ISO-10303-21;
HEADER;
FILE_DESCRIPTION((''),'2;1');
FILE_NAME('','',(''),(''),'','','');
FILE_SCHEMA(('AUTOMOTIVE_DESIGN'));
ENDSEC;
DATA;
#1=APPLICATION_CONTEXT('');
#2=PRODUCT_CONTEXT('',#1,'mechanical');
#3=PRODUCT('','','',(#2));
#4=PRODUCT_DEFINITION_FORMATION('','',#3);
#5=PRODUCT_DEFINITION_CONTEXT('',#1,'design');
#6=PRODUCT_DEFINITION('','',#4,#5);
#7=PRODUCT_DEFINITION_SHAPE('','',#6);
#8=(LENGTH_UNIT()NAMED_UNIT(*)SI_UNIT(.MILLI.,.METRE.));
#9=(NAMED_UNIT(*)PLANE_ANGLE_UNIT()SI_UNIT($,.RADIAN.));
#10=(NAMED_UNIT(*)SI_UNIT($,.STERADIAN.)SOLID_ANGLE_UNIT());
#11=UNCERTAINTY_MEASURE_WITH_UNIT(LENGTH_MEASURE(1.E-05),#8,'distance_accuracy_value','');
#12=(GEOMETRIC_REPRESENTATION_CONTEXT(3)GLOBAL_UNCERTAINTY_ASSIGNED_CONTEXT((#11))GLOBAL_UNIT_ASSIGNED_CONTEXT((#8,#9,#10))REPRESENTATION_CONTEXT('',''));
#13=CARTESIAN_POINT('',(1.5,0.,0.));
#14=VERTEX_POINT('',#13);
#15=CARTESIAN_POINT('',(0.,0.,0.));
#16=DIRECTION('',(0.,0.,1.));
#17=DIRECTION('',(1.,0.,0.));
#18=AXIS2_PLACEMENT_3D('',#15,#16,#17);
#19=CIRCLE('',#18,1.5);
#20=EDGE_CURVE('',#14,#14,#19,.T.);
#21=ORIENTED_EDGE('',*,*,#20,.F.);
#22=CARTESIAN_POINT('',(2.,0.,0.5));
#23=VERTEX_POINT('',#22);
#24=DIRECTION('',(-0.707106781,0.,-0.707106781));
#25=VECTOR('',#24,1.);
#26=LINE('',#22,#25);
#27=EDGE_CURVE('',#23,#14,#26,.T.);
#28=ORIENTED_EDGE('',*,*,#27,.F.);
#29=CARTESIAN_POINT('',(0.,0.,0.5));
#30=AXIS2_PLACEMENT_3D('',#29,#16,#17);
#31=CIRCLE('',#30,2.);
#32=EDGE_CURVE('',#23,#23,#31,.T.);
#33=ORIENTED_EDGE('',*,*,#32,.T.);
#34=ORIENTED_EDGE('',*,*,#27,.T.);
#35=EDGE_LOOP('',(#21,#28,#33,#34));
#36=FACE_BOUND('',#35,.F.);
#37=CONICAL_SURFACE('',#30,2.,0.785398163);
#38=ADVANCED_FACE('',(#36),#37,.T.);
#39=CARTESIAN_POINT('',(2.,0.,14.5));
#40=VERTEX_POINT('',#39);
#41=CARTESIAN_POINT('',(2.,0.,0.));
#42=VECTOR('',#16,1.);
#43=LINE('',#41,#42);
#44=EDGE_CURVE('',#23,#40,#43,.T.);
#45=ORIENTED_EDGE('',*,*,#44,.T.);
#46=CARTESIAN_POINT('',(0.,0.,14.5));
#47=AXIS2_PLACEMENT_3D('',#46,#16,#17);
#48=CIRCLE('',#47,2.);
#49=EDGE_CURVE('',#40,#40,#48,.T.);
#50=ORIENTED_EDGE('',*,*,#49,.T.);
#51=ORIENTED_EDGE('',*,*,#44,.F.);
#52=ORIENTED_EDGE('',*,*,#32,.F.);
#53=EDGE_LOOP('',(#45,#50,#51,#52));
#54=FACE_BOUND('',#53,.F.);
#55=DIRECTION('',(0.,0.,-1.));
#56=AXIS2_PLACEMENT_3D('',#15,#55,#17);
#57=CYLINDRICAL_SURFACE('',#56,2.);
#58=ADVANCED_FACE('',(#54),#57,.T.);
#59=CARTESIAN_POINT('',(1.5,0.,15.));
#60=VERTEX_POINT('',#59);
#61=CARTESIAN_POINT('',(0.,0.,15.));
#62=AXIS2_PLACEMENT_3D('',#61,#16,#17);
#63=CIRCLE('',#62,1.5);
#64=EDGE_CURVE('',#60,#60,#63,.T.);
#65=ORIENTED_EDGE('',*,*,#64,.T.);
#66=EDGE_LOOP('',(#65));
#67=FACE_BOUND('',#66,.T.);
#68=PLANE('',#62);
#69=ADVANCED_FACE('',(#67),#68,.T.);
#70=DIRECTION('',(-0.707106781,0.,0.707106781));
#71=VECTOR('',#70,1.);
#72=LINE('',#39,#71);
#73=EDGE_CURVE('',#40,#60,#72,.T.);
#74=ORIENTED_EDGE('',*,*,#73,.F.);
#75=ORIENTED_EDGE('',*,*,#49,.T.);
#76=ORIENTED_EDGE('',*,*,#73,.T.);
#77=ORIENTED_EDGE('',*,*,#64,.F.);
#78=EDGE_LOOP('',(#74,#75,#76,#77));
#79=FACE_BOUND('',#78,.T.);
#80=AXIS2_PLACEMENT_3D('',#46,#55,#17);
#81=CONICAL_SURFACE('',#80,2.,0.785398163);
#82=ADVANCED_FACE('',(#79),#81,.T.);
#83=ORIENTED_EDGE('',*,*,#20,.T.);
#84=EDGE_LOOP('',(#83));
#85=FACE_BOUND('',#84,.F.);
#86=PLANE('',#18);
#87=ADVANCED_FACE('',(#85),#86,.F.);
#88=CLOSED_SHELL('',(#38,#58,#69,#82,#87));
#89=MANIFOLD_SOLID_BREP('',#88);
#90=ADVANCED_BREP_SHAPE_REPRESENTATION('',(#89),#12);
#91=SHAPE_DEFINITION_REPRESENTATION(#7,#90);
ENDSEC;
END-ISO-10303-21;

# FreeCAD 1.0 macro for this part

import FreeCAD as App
import Part
import Sketcher

V = App.Vector


def edges_at(feature, points):
    """Names of the edges that pass closest to the given points."""
    edges = feature.Shape.Edges
    near = lambda p: min(range(len(edges)), key=lambda i: edges[i].distToShape(Part.Vertex(*p))[0])
    return sorted({f"Edge{near(p) + 1}" for p in points})

doc = App.newDocument("Part")
params = doc.addObject("Spreadsheet::Sheet", "Params")
for row, (alias, value) in enumerate([
    ("sketch1_diameter", "4 mm"),
    ("pad1_length", "15 mm"),
    ("chamfer_size", "0.5 mm"),
], start=1):
    params.set(f"A{row}", alias)
    params.set(f"B{row}", "=" + value)
    params.setAlias(f"B{row}", alias)

body = doc.addObject("PartDesign::Body", "Body")

sketch1 = body.newObject("Sketcher::SketchObject", "Sketch")
sketch1.AttachmentSupport = (doc.getObject("XY_Plane"), [""])
sketch1.MapMode = "FlatFace"
sketch1.addGeometry(Part.Circle(V(0, 0, 0), V(0, 0, 1), 2), False)
sketch1.addConstraint(Sketcher.Constraint("Coincident", 0, 3, -1, 1))
sketch1.addConstraint(Sketcher.Constraint("Diameter", 0, 4.0))
sketch1.setExpression("Constraints[1]", "Params.sketch1_diameter")
pad1 = body.newObject("PartDesign::Pad", "Pad")
pad1.Profile = sketch1
pad1.setExpression("Length", "Params.pad1_length")
doc.recompute()

chamfer = body.newObject("PartDesign::Chamfer", "Chamfer")
chamfer.Base = (pad1, edges_at(pad1, [(-2, 0, 15), (-2, 0, 0)]))
chamfer.setExpression("Size", "Params.chamfer_size")

doc.recompute()
